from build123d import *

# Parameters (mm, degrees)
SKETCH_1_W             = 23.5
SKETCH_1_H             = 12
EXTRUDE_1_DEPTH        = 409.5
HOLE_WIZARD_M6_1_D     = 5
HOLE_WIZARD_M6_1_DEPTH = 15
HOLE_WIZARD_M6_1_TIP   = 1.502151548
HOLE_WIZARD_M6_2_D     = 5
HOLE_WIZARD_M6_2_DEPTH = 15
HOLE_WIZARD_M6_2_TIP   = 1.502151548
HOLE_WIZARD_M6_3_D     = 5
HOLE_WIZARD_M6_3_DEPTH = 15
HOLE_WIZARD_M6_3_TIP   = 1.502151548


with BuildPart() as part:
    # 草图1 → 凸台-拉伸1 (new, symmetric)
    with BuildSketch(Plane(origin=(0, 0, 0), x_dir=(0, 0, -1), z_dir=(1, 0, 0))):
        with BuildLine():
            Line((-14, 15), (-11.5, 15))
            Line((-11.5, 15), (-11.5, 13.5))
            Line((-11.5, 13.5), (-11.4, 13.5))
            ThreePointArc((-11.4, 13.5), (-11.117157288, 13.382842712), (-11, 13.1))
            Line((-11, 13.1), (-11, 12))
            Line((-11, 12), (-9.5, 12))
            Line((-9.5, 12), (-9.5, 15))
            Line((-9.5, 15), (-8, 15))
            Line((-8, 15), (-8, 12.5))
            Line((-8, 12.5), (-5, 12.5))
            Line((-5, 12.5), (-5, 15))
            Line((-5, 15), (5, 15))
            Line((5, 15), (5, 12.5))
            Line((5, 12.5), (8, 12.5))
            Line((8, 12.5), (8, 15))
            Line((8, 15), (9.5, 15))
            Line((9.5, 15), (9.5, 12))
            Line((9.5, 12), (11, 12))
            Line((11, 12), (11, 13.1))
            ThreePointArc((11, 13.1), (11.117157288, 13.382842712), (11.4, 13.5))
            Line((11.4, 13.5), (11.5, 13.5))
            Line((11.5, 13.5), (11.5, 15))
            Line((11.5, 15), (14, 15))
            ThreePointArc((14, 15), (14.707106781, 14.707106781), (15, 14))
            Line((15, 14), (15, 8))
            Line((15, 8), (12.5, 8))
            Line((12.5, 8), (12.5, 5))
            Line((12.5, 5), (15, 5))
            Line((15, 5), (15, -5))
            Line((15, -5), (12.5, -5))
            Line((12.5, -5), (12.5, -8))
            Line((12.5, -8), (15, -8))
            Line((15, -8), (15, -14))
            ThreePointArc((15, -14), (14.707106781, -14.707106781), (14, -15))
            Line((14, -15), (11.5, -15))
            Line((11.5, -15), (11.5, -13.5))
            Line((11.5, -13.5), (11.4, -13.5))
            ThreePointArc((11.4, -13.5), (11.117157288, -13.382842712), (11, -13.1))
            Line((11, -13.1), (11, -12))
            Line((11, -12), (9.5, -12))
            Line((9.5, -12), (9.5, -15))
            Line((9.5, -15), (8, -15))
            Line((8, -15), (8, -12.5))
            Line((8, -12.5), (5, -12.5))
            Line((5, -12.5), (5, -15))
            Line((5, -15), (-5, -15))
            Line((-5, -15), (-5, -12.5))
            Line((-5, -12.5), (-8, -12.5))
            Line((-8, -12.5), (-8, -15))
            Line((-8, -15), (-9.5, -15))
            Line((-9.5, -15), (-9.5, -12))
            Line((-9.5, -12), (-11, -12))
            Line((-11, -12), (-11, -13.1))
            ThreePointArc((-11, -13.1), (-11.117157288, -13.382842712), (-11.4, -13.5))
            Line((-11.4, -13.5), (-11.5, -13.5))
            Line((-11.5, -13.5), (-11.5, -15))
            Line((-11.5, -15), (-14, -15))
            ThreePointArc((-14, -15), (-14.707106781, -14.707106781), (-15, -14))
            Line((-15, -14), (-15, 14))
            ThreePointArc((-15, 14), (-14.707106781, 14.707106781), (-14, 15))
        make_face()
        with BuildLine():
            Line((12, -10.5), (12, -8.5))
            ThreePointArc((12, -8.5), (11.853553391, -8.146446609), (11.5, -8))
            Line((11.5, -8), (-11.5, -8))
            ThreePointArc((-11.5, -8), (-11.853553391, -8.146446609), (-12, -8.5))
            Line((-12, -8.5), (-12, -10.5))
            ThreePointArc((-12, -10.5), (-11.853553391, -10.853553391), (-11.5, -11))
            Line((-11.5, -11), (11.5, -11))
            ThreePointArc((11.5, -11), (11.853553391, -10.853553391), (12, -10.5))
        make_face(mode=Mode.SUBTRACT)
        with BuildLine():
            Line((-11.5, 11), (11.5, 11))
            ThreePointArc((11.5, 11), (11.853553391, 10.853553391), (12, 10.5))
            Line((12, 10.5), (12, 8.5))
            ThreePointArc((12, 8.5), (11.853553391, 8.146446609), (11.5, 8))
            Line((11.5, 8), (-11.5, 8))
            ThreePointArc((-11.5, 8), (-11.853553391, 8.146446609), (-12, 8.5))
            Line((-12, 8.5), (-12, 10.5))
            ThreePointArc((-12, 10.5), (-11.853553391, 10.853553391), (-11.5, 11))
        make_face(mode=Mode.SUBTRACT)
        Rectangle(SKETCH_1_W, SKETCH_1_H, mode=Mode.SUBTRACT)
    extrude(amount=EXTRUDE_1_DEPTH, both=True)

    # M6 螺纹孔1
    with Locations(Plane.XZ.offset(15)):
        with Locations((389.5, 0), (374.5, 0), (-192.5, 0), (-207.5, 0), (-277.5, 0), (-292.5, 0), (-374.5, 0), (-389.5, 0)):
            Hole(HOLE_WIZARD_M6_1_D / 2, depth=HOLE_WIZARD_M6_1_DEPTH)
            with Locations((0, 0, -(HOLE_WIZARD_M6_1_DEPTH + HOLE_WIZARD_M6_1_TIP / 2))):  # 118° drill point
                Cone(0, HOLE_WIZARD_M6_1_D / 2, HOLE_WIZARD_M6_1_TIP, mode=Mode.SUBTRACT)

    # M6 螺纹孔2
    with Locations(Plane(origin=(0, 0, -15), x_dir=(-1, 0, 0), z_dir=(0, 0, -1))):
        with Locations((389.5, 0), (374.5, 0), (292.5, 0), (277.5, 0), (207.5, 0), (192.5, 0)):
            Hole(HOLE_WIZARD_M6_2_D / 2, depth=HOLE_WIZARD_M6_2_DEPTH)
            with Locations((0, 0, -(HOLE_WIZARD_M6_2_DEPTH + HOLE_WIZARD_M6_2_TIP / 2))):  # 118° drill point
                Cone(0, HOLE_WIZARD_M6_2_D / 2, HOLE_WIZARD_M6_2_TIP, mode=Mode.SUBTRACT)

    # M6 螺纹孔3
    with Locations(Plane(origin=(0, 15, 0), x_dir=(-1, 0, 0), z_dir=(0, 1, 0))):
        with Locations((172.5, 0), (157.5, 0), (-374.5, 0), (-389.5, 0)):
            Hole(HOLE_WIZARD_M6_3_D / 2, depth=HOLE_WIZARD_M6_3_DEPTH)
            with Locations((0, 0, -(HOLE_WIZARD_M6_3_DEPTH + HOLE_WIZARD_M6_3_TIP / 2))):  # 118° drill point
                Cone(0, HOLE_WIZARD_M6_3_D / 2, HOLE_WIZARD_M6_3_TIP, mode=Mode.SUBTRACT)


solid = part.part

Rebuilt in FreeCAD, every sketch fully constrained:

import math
import FreeCAD as App
import Part
import Sketcher
Q = App.Units.Quantity


def add_polygon(sketch, points):
    """Adds a closed chain of lines whose ends are joined by coincident constraints."""
    first, n = sketch.GeometryCount, len(points)
    for a, b in zip(points, points[1:] + points[:1]):
        sketch.addGeometry(Part.LineSegment(App.Vector(*a, 0), App.Vector(*b, 0)), False)
    for i in range(n):
        sketch.addConstraint(Sketcher.Constraint("Coincident", first + i, 2, first + (i + 1) % n, 1))

doc = App.newDocument("Part")
params = doc.addObject("Spreadsheet::Sheet", "Params")
for row, (alias, value) in enumerate([
    ("sketch1_radius", "1 mm"),
    ("sketch1_radius2", "0.4 mm"),
    ("sketch1_radius3", "0.5 mm"),
    ("sketch1_width", "28 mm"),
    ("sketch1_width2", "3 mm"),
    ("pad1_length", "819 mm"),
    ("sketch2_diameter", "5 mm"),
    ("hole_diameter", "5 mm"),
    ("hole_depth", "15 mm"),
    ("sketch3_diameter", "5 mm"),
    ("hole2_diameter", "5 mm"),
    ("hole2_depth", "15 mm"),
    ("sketch4_diameter", "5 mm"),
    ("hole3_diameter", "5 mm"),
    ("hole3_depth", "15 mm"),
], start=1):
    params.set(f"A{row}", alias)
    params.set(f"B{row}", "=" + value)
    params.setAlias(f"B{row}", alias)

body = doc.addObject("PartDesign::Body", "Body")

sketch1 = body.newObject("Sketcher::SketchObject", "Sketch")
sketch1.AttachmentSupport = (doc.getObject("YZ_Plane"), [""])
sketch1.MapMode = "FlatFace"
sketch1.addGeometry(Part.LineSegment(App.Vector(15, 11.5, 0), App.Vector(15, 14, 0)), False)
sketch1.addGeometry(Part.ArcOfCircle(Part.Circle(App.Vector(14, 14, 0), App.Vector(0, 0, 1), 1), math.radians(0), math.radians(90)), False)
sketch1.addGeometry(Part.LineSegment(App.Vector(14, 15, 0), App.Vector(-14, 15, 0)), False)
sketch1.addGeometry(Part.ArcOfCircle(Part.Circle(App.Vector(-14, 14, 0), App.Vector(0, 0, 1), 1), math.radians(90), math.radians(180)), False)
sketch1.addGeometry(Part.LineSegment(App.Vector(-15, 14, 0), App.Vector(-15, 11.5, 0)), False)
sketch1.addGeometry(Part.LineSegment(App.Vector(-15, 11.5, 0), App.Vector(-13.5, 11.5, 0)), False)
sketch1.addGeometry(Part.LineSegment(App.Vector(-13.5, 11.5, 0), App.Vector(-13.5, 11.4, 0)), False)
sketch1.addGeometry(Part.ArcOfCircle(Part.Circle(App.Vector(-13.1, 11.4, 0), App.Vector(0, 0, 1), 0.4), math.radians(-180), math.radians(-90)), False)
sketch1.addGeometry(Part.LineSegment(App.Vector(-13.1, 11, 0), App.Vector(-12, 11, 0)), False)
sketch1.addGeometry(Part.LineSegment(App.Vector(-12, 11, 0), App.Vector(-12, 9.5, 0)), False)
sketch1.addGeometry(Part.LineSegment(App.Vector(-12, 9.5, 0), App.Vector(-15, 9.5, 0)), False)
sketch1.addGeometry(Part.LineSegment(App.Vector(-15, 9.5, 0), App.Vector(-15, 8, 0)), False)
sketch1.addGeometry(Part.LineSegment(App.Vector(-15, 8, 0), App.Vector(-12.5, 8, 0)), False)
sketch1.addGeometry(Part.LineSegment(App.Vector(-12.5, 8, 0), App.Vector(-12.5, 5, 0)), False)
sketch1.addGeometry(Part.LineSegment(App.Vector(-12.5, 5, 0), App.Vector(-15, 5, 0)), False)
sketch1.addGeometry(Part.LineSegment(App.Vector(-15, 5, 0), App.Vector(-15, -5, 0)), False)
sketch1.addGeometry(Part.LineSegment(App.Vector(-15, -5, 0), App.Vector(-12.5, -5, 0)), False)
sketch1.addGeometry(Part.LineSegment(App.Vector(-12.5, -5, 0), App.Vector(-12.5, -8, 0)), False)
sketch1.addGeometry(Part.LineSegment(App.Vector(-12.5, -8, 0), App.Vector(-15, -8, 0)), False)
sketch1.addGeometry(Part.LineSegment(App.Vector(-15, -8, 0), App.Vector(-15, -9.5, 0)), False)
sketch1.addGeometry(Part.LineSegment(App.Vector(-15, -9.5, 0), App.Vector(-12, -9.5, 0)), False)
sketch1.addGeometry(Part.LineSegment(App.Vector(-12, -9.5, 0), App.Vector(-12, -11, 0)), False)
sketch1.addGeometry(Part.LineSegment(App.Vector(-12, -11, 0), App.Vector(-13.1, -11, 0)), False)
sketch1.addGeometry(Part.ArcOfCircle(Part.Circle(App.Vector(-13.1, -11.4, 0), App.Vector(0, 0, 1), 0.4), math.radians(90), math.radians(180)), False)
sketch1.addGeometry(Part.LineSegment(App.Vector(-13.5, -11.4, 0), App.Vector(-13.5, -11.5, 0)), False)
sketch1.addGeometry(Part.LineSegment(App.Vector(-13.5, -11.5, 0), App.Vector(-15, -11.5, 0)), False)
sketch1.addGeometry(Part.LineSegment(App.Vector(-15, -11.5, 0), App.Vector(-15, -14, 0)), False)
sketch1.addGeometry(Part.ArcOfCircle(Part.Circle(App.Vector(-14, -14, 0), App.Vector(0, 0, 1), 1), math.radians(-180), math.radians(-90)), False)
sketch1.addGeometry(Part.LineSegment(App.Vector(-14, -15, 0), App.Vector(-8, -15, 0)), False)
sketch1.addGeometry(Part.LineSegment(App.Vector(-8, -15, 0), App.Vector(-8, -12.5, 0)), False)
sketch1.addGeometry(Part.LineSegment(App.Vector(-8, -12.5, 0), App.Vector(-5, -12.5, 0)), False)
sketch1.addGeometry(Part.LineSegment(App.Vector(-5, -12.5, 0), App.Vector(-5, -15, 0)), False)
sketch1.addGeometry(Part.LineSegment(App.Vector(-5, -15, 0), App.Vector(5, -15, 0)), False)
sketch1.addGeometry(Part.LineSegment(App.Vector(5, -15, 0), App.Vector(5, -12.5, 0)), False)
sketch1.addGeometry(Part.LineSegment(App.Vector(5, -12.5, 0), App.Vector(8, -12.5, 0)), False)
sketch1.addGeometry(Part.LineSegment(App.Vector(8, -12.5, 0), App.Vector(8, -15, 0)), False)
sketch1.addGeometry(Part.LineSegment(App.Vector(8, -15, 0), App.Vector(14, -15, 0)), False)
sketch1.addGeometry(Part.ArcOfCircle(Part.Circle(App.Vector(14, -14, 0), App.Vector(0, 0, 1), 1), math.radians(-90), math.radians(0)), False)
sketch1.addGeometry(Part.LineSegment(App.Vector(15, -14, 0), App.Vector(15, -11.5, 0)), False)
sketch1.addGeometry(Part.LineSegment(App.Vector(15, -11.5, 0), App.Vector(13.5, -11.5, 0)), False)
sketch1.addGeometry(Part.LineSegment(App.Vector(13.5, -11.5, 0), App.Vector(13.5, -11.4, 0)), False)
sketch1.addGeometry(Part.ArcOfCircle(Part.Circle(App.Vector(13.1, -11.4, 0), App.Vector(0, 0, 1), 0.4), math.radians(0), math.radians(90)), False)
sketch1.addGeometry(Part.LineSegment(App.Vector(13.1, -11, 0), App.Vector(12, -11, 0)), False)
sketch1.addGeometry(Part.LineSegment(App.Vector(12, -11, 0), App.Vector(12, -9.5, 0)), False)
sketch1.addGeometry(Part.LineSegment(App.Vector(12, -9.5, 0), App.Vector(15, -9.5, 0)), False)
sketch1.addGeometry(Part.LineSegment(App.Vector(15, -9.5, 0), App.Vector(15, -8, 0)), False)
sketch1.addGeometry(Part.LineSegment(App.Vector(15, -8, 0), App.Vector(12.5, -8, 0)), False)
sketch1.addGeometry(Part.LineSegment(App.Vector(12.5, -8, 0), App.Vector(12.5, -5, 0)), False)
sketch1.addGeometry(Part.LineSegment(App.Vector(12.5, -5, 0), App.Vector(15, -5, 0)), False)
sketch1.addGeometry(Part.LineSegment(App.Vector(15, -5, 0), App.Vector(15, 5, 0)), False)
sketch1.addGeometry(Part.LineSegment(App.Vector(15, 5, 0), App.Vector(12.5, 5, 0)), False)
sketch1.addGeometry(Part.LineSegment(App.Vector(12.5, 5, 0), App.Vector(12.5, 8, 0)), False)
sketch1.addGeometry(Part.LineSegment(App.Vector(12.5, 8, 0), App.Vector(15, 8, 0)), False)
sketch1.addGeometry(Part.LineSegment(App.Vector(15, 8, 0), App.Vector(15, 9.5, 0)), False)
sketch1.addGeometry(Part.LineSegment(App.Vector(15, 9.5, 0), App.Vector(12, 9.5, 0)), False)
sketch1.addGeometry(Part.LineSegment(App.Vector(12, 9.5, 0), App.Vector(12, 11, 0)), False)
sketch1.addGeometry(Part.LineSegment(App.Vector(12, 11, 0), App.Vector(13.1, 11, 0)), False)
sketch1.addGeometry(Part.ArcOfCircle(Part.Circle(App.Vector(13.1, 11.4, 0), App.Vector(0, 0, 1), 0.4), math.radians(-90), math.radians(0)), False)
sketch1.addGeometry(Part.LineSegment(App.Vector(13.5, 11.4, 0), App.Vector(13.5, 11.5, 0)), False)
sketch1.addGeometry(Part.LineSegment(App.Vector(13.5, 11.5, 0), App.Vector(15, 11.5, 0)), False)
sketch1.addGeometry(Part.ArcOfCircle(Part.Circle(App.Vector(-10.5, -11.5, 0), App.Vector(0, 0, 1), 0.5), math.radians(180), math.radians(270)), False)
sketch1.addGeometry(Part.LineSegment(App.Vector(-11, -11.5, 0), App.Vector(-11, 11.5, 0)), False)
sketch1.addGeometry(Part.ArcOfCircle(Part.Circle(App.Vector(-10.5, 11.5, 0), App.Vector(0, 0, 1), 0.5), math.radians(90), math.radians(180)), False)
sketch1.addGeometry(Part.LineSegment(App.Vector(-10.5, 12, 0), App.Vector(-8.5, 12, 0)), False)
sketch1.addGeometry(Part.ArcOfCircle(Part.Circle(App.Vector(-8.5, 11.5, 0), App.Vector(0, 0, 1), 0.5), math.radians(0), math.radians(90)), False)
sketch1.addGeometry(Part.LineSegment(App.Vector(-8, 11.5, 0), App.Vector(-8, -11.5, 0)), False)
sketch1.addGeometry(Part.ArcOfCircle(Part.Circle(App.Vector(-8.5, -11.5, 0), App.Vector(0, 0, 1), 0.5), math.radians(-90), math.radians(0)), False)
sketch1.addGeometry(Part.LineSegment(App.Vector(-8.5, -12, 0), App.Vector(-10.5, -12, 0)), False)
add_polygon(sketch1, [(-6, 11.75), (6, 11.75), (6, -11.75), (-6, -11.75)])
sketch1.addGeometry(Part.LineSegment(App.Vector(11, 11.5, 0), App.Vector(11, -11.5, 0)), False)
sketch1.addGeometry(Part.ArcOfCircle(Part.Circle(App.Vector(10.5, -11.5, 0), App.Vector(0, 0, 1), 0.5), math.radians(-90), math.radians(0)), False)
sketch1.addGeometry(Part.LineSegment(App.Vector(10.5, -12, 0), App.Vector(8.5, -12, 0)), False)
sketch1.addGeometry(Part.ArcOfCircle(Part.Circle(App.Vector(8.5, -11.5, 0), App.Vector(0, 0, 1), 0.5), math.radians(180), math.radians(270)), False)
sketch1.addGeometry(Part.LineSegment(App.Vector(8, -11.5, 0), App.Vector(8, 11.5, 0)), False)
sketch1.addGeometry(Part.ArcOfCircle(Part.Circle(App.Vector(8.5, 11.5, 0), App.Vector(0, 0, 1), 0.5), math.radians(90), math.radians(180)), False)
sketch1.addGeometry(Part.LineSegment(App.Vector(8.5, 12, 0), App.Vector(10.5, 12, 0)), False)
sketch1.addGeometry(Part.ArcOfCircle(Part.Circle(App.Vector(10.5, 11.5, 0), App.Vector(0, 0, 1), 0.5), math.radians(0), math.radians(90)), False)
sketch1.addConstraint([
    Sketcher.Constraint("Tangent", 0, 2, 1, 1),
    Sketcher.Constraint("Tangent", 1, 2, 2, 1),
    Sketcher.Constraint("Tangent", 2, 2, 3, 1),
    Sketcher.Constraint("Tangent", 3, 2, 4, 1),
    Sketcher.Constraint("Coincident", 4, 2, 5, 1),
    Sketcher.Constraint("Coincident", 5, 2, 6, 1),
    Sketcher.Constraint("Tangent", 6, 2, 7, 1),
    Sketcher.Constraint("Tangent", 7, 2, 8, 1),
    Sketcher.Constraint("Coincident", 8, 2, 9, 1),
    Sketcher.Constraint("Coincident", 9, 2, 10, 1),
    Sketcher.Constraint("Coincident", 10, 2, 11, 1),
    Sketcher.Constraint("Coincident", 11, 2, 12, 1),
    Sketcher.Constraint("Coincident", 12, 2, 13, 1),
    Sketcher.Constraint("Coincident", 13, 2, 14, 1),
    Sketcher.Constraint("Coincident", 14, 2, 15, 1),
    Sketcher.Constraint("Coincident", 15, 2, 16, 1),
    Sketcher.Constraint("Coincident", 16, 2, 17, 1),
    Sketcher.Constraint("Coincident", 17, 2, 18, 1),
    Sketcher.Constraint("Coincident", 18, 2, 19, 1),
    Sketcher.Constraint("Coincident", 19, 2, 20, 1),
    Sketcher.Constraint("Coincident", 20, 2, 21, 1),
    Sketcher.Constraint("Coincident", 21, 2, 22, 1),
    Sketcher.Constraint("Tangent", 22, 2, 23, 1),
    Sketcher.Constraint("Tangent", 23, 2, 24, 1),
    Sketcher.Constraint("Coincident", 24, 2, 25, 1),
    Sketcher.Constraint("Coincident", 25, 2, 26, 1),
    Sketcher.Constraint("Tangent", 26, 2, 27, 1),
    Sketcher.Constraint("Tangent", 27, 2, 28, 1),
    Sketcher.Constraint("Coincident", 28, 2, 29, 1),
    Sketcher.Constraint("Coincident", 29, 2, 30, 1),
    Sketcher.Constraint("Coincident", 30, 2, 31, 1),
    Sketcher.Constraint("Coincident", 31, 2, 32, 1),
    Sketcher.Constraint("Coincident", 32, 2, 33, 1),
    Sketcher.Constraint("Coincident", 33, 2, 34, 1),
    Sketcher.Constraint("Coincident", 34, 2, 35, 1),
    Sketcher.Constraint("Coincident", 35, 2, 36, 1),
    Sketcher.Constraint("Tangent", 36, 2, 37, 1),
    Sketcher.Constraint("Tangent", 37, 2, 38, 1),
    Sketcher.Constraint("Coincident", 38, 2, 39, 1),
    Sketcher.Constraint("Coincident", 39, 2, 40, 1),
    Sketcher.Constraint("Tangent", 40, 2, 41, 1),
    Sketcher.Constraint("Tangent", 41, 2, 42, 1),
    Sketcher.Constraint("Coincident", 42, 2, 43, 1),
    Sketcher.Constraint("Coincident", 43, 2, 44, 1),
    Sketcher.Constraint("Coincident", 44, 2, 45, 1),
    Sketcher.Constraint("Coincident", 45, 2, 46, 1),
    Sketcher.Constraint("Coincident", 46, 2, 47, 1),
    Sketcher.Constraint("Coincident", 47, 2, 48, 1),
    Sketcher.Constraint("Coincident", 48, 2, 49, 1),
    Sketcher.Constraint("Coincident", 49, 2, 50, 1),
    Sketcher.Constraint("Coincident", 50, 2, 51, 1),
    Sketcher.Constraint("Coincident", 51, 2, 52, 1),
    Sketcher.Constraint("Coincident", 52, 2, 53, 1),
    Sketcher.Constraint("Coincident", 53, 2, 54, 1),
    Sketcher.Constraint("Coincident", 54, 2, 55, 1),
    Sketcher.Constraint("Coincident", 55, 2, 56, 1),
    Sketcher.Constraint("Tangent", 56, 2, 57, 1),
    Sketcher.Constraint("Tangent", 57, 2, 58, 1),
    Sketcher.Constraint("Coincident", 58, 2, 59, 1),
    Sketcher.Constraint("Coincident", 59, 2, 0, 1),
    Sketcher.Constraint("Tangent", 60, 1, 61, 1),
    Sketcher.Constraint("Tangent", 61, 2, 62, 2),
    Sketcher.Constraint("Tangent", 62, 1, 63, 1),
    Sketcher.Constraint("Tangent", 63, 2, 64, 2),
    Sketcher.Constraint("Tangent", 64, 1, 65, 1),
    Sketcher.Constraint("Tangent", 65, 2, 66, 2),
    Sketcher.Constraint("Tangent", 66, 1, 67, 1),
    Sketcher.Constraint("Tangent", 67, 2, 60, 2),
    Sketcher.Constraint("Tangent", 72, 2, 73, 2),
    Sketcher.Constraint("Tangent", 73, 1, 74, 1),
    Sketcher.Constraint("Tangent", 74, 2, 75, 2),
    Sketcher.Constraint("Tangent", 75, 1, 76, 1),
    Sketcher.Constraint("Tangent", 76, 2, 77, 2),
    Sketcher.Constraint("Tangent", 77, 1, 78, 1),
    Sketcher.Constraint("Tangent", 78, 2, 79, 2),
    Sketcher.Constraint("Tangent", 79, 1, 72, 1),
    Sketcher.Constraint("Vertical", 0),
    Sketcher.Constraint("Horizontal", 2),
    Sketcher.Constraint("Vertical", 4),
    Sketcher.Constraint("Horizontal", 5),
    Sketcher.Constraint("Vertical", 6),
    Sketcher.Constraint("Horizontal", 8),
    Sketcher.Constraint("Vertical", 9),
    Sketcher.Constraint("Horizontal", 10),
    Sketcher.Constraint("Vertical", 11),
    Sketcher.Constraint("Horizontal", 12),
    Sketcher.Constraint("Vertical", 13),
    Sketcher.Constraint("Horizontal", 14),
    Sketcher.Constraint("Vertical", 15),
    Sketcher.Constraint("Horizontal", 16),
    Sketcher.Constraint("Vertical", 17),
    Sketcher.Constraint("Horizontal", 18),
    Sketcher.Constraint("Vertical", 19),
    Sketcher.Constraint("Horizontal", 20),
    Sketcher.Constraint("Vertical", 21),
    Sketcher.Constraint("Horizontal", 22),
    Sketcher.Constraint("Vertical", 24),
    Sketcher.Constraint("Horizontal", 25),
    Sketcher.Constraint("Vertical", 26),
    Sketcher.Constraint("Horizontal", 28),
    Sketcher.Constraint("Vertical", 29),
    Sketcher.Constraint("Horizontal", 30),
    Sketcher.Constraint("Vertical", 31),
    Sketcher.Constraint("Horizontal", 32),
    Sketcher.Constraint("Vertical", 33),
    Sketcher.Constraint("Horizontal", 34),
    Sketcher.Constraint("Vertical", 35),
    Sketcher.Constraint("Horizontal", 36),
    Sketcher.Constraint("Vertical", 38),
    Sketcher.Constraint("Horizontal", 39),
    Sketcher.Constraint("Vertical", 40),
    Sketcher.Constraint("Horizontal", 42),
    Sketcher.Constraint("Vertical", 43),
    Sketcher.Constraint("Horizontal", 44),
    Sketcher.Constraint("Vertical", 45),
    Sketcher.Constraint("Horizontal", 46),
    Sketcher.Constraint("Vertical", 47),
    Sketcher.Constraint("Horizontal", 48),
    Sketcher.Constraint("Vertical", 49),
    Sketcher.Constraint("Horizontal", 50),
    Sketcher.Constraint("Vertical", 51),
    Sketcher.Constraint("Horizontal", 52),
    Sketcher.Constraint("Vertical", 53),
    Sketcher.Constraint("Horizontal", 54),
    Sketcher.Constraint("Vertical", 55),
    Sketcher.Constraint("Horizontal", 56),
    Sketcher.Constraint("Vertical", 58),
    Sketcher.Constraint("Horizontal", 59),
    Sketcher.Constraint("Vertical", 61),
    Sketcher.Constraint("Horizontal", 63),
    Sketcher.Constraint("Vertical", 65),
    Sketcher.Constraint("Horizontal", 67),
    Sketcher.Constraint("Horizontal", 68),
    Sketcher.Constraint("Vertical", 69),
    Sketcher.Constraint("Horizontal", 70),
    Sketcher.Constraint("Vertical", 71),
    Sketcher.Constraint("Vertical", 72),
    Sketcher.Constraint("Horizontal", 74),
    Sketcher.Constraint("Vertical", 76),
    Sketcher.Constraint("Horizontal", 78),
    Sketcher.Constraint("Equal", 1, 3),
    Sketcher.Constraint("Equal", 7, 23),
    Sketcher.Constraint("Equal", 3, 27),
    Sketcher.Constraint("Equal", 27, 37),
    Sketcher.Constraint("Equal", 23, 41),
    Sketcher.Constraint("Equal", 41, 57),
    Sketcher.Constraint("Equal", 60, 62),
    Sketcher.Constraint("Equal", 62, 64),
    Sketcher.Constraint("Equal", 64, 66),
    Sketcher.Constraint("Equal", 66, 73),
    Sketcher.Constraint("Equal", 73, 75),
    Sketcher.Constraint("Equal", 75, 77),
    Sketcher.Constraint("Equal", 77, 79),
    Sketcher.Constraint("Symmetric", 1, 3, 27, 3, -1, 1),
    Sketcher.Constraint("Symmetric", 3, 3, 37, 3, -1, 1),
    Sketcher.Constraint("Symmetric", 7, 3, 41, 3, -1, 1),
    Sketcher.Constraint("Symmetric", 23, 3, 57, 3, -1, 1),
    Sketcher.Constraint("Symmetric", 62, 3, 73, 3, -1, 1),
    Sketcher.Constraint("Symmetric", 66, 3, 77, 3, -1, 1),
    Sketcher.Constraint("Symmetric", 9, 2, 43, 2, -1, 1),
    Sketcher.Constraint("Symmetric", 11, 2, 45, 2, -1, 1),
    Sketcher.Constraint("Symmetric", 13, 2, 47, 2, -1, 1),
    Sketcher.Constraint("Symmetric", 15, 2, 49, 2, -1, 1),
    Sketcher.Constraint("Symmetric", 17, 2, 51, 2, -1, 1),
    Sketcher.Constraint("Symmetric", 19, 2, 53, 2, -1, 1),
    Sketcher.Constraint("Symmetric", 68, 2, 70, 2, -1, 1),
    Sketcher.Constraint("Symmetric", 23, 3, 41, 3, -2),
    Sketcher.Constraint("Symmetric", 30, 2, 33, 2, -2),
    Sketcher.Constraint("Symmetric", 25, 2, 38, 2, -2),
    Sketcher.Constraint("Symmetric", 20, 2, 43, 2, -2),
    Sketcher.Constraint("Symmetric", 18, 2, 45, 2, -2),
    Sketcher.Constraint("Symmetric", 16, 2, 47, 2, -2),
    Sketcher.Constraint("Horizontal", 66, 3, 73, 3),
    Sketcher.Constraint("Horizontal", 79, 3, 4, 2),
    Sketcher.Constraint("Horizontal", 75, 3, 24, 2),
    Sketcher.Constraint("Horizontal", 28, 2, 31, 2),
    Sketcher.Constraint("Horizontal", 5, 2, 58, 2),
    Sketcher.Constraint("Vertical", 4, 2, 10, 2),
    Sketcher.Constraint("Vertical", 11, 2, 14, 2),
    Sketcher.Constraint("Vertical", 43, 2, 54, 2),
    Sketcher.Constraint("Vertical", 29, 2, 64, 1),
    Sketcher.Constraint("Vertical", 35, 2, 75, 1),
    Sketcher.Constraint("Equal", 20, 30),
    Sketcher.Constraint("Equal", 52, 0),
    Sketcher.Constraint("Equal", 59, 9),
    Sketcher.Constraint("Equal", 9, 11),
    Sketcher.Constraint("Equal", 54, 13),
    Sketcher.Constraint("Equal", 32, 15),
    Sketcher.Constraint("Equal", 26, 29),
    Sketcher.Constraint("Radius", 1, Q("1 mm")),
    Sketcher.Constraint("Radius", 7, Q("0.4 mm")),
    Sketcher.Constraint("Radius", 60, Q("0.5 mm")),
    Sketcher.Constraint("DistanceX", 2, 2, 2, 1, Q("28 mm")),
    Sketcher.Constraint("DistanceX", 10, 2, 10, 1, Q("3 mm")),
    Sketcher.Constraint("DistanceX", 28, 1, 28, 2, Q("6 mm")),
    Sketcher.Constraint("DistanceX", 63, 1, 63, 2, Q("2 mm")),
    Sketcher.Constraint("DistanceX", 68, 1, 68, 2, Q("12 mm")),
    Sketcher.Constraint("DistanceY", 61, 1, 61, 2, Q("23 mm")),
    Sketcher.Constraint("DistanceX", 5, 1, 5, 2, Q("1.5 mm")),
    Sketcher.Constraint("DistanceX", 12, 1, 12, 2, Q("2.5 mm")),
    Sketcher.Constraint("DistanceY", 69, 2, 69, 1, Q("23.5 mm")),
])
sketch1.setExpression("Constraints[193]", "Params.sketch1_radius")
sketch1.setExpression("Constraints[194]", "Params.sketch1_radius2")
sketch1.setExpression("Constraints[195]", "Params.sketch1_radius3")
sketch1.setExpression("Constraints[196]", "Params.sketch1_width")
sketch1.setExpression("Constraints[197]", "Params.sketch1_width2")
pad1 = body.newObject("PartDesign::Pad", "Pad")
pad1.Profile = sketch1
pad1.setExpression("Length", "Params.pad1_length")
pad1.Midplane = True

sketch2 = body.newObject("Sketcher::SketchObject", "Sketch001")
sketch2.AttachmentSupport = (doc.getObject("XZ_Plane"), [""])
sketch2.MapMode = "FlatFace"
sketch2.AttachmentOffset = App.Placement(App.Vector(0, 0, 15), App.Rotation())
sketch2.addGeometry([
    Part.Circle(App.Vector(389.5, 0, 0), App.Vector(0, 0, 1), 2.5),
    Part.Circle(App.Vector(374.5, 0, 0), App.Vector(0, 0, 1), 2.5),
    Part.Circle(App.Vector(-192.5, 0, 0), App.Vector(0, 0, 1), 2.5),
    Part.Circle(App.Vector(-207.5, 0, 0), App.Vector(0, 0, 1), 2.5),
    Part.Circle(App.Vector(-277.5, 0, 0), App.Vector(0, 0, 1), 2.5),
    Part.Circle(App.Vector(-292.5, 0, 0), App.Vector(0, 0, 1), 2.5),
    Part.Circle(App.Vector(-374.5, 0, 0), App.Vector(0, 0, 1), 2.5),
    Part.Circle(App.Vector(-389.5, 0, 0), App.Vector(0, 0, 1), 2.5),
], False)
sketch2.addConstraint([
    Sketcher.Constraint("Equal", 0, 1),
    Sketcher.Constraint("Equal", 1, 2),
    Sketcher.Constraint("Equal", 2, 3),
    Sketcher.Constraint("Equal", 3, 4),
    Sketcher.Constraint("Equal", 4, 5),
    Sketcher.Constraint("Equal", 5, 6),
    Sketcher.Constraint("Equal", 6, 7),
    Sketcher.Constraint("Symmetric", 1, 3, 6, 3, -1, 1),
    Sketcher.Constraint("Symmetric", 0, 3, 7, 3, -1, 1),
    Sketcher.Constraint("PointOnObject", 0, 3, -1),
    Sketcher.Constraint("PointOnObject", 1, 3, -1),
    Sketcher.Constraint("PointOnObject", 2, 3, -1),
    Sketcher.Constraint("PointOnObject", 3, 3, -1),
    Sketcher.Constraint("PointOnObject", 4, 3, -1),
    Sketcher.Constraint("PointOnObject", 5, 3, -1),
    Sketcher.Constraint("Diameter", 0, Q("5 mm")),
    Sketcher.Constraint("DistanceX", 1, 3, 0, 3, Q("15 mm")),
    Sketcher.Constraint("DistanceX", 2, 3, 1, 3, Q("567 mm")),
    Sketcher.Constraint("DistanceX", 3, 3, 2, 3, Q("15 mm")),
    Sketcher.Constraint("DistanceX", 4, 3, 3, 3, Q("70 mm")),
    Sketcher.Constraint("DistanceX", 5, 3, 4, 3, Q("15 mm")),
    Sketcher.Constraint("DistanceX", 6, 3, 5, 3, Q("82 mm")),
])
sketch2.setExpression("Constraints[15]", "Params.sketch2_diameter")
doc.recompute()
hole = body.newObject("PartDesign::Hole", "Hole")
hole.Profile = sketch2
hole.ThreadType = "None"
hole.setExpression("Diameter", "Params.hole_diameter")
hole.DepthType = "Dimension"
hole.setExpression("Depth", "Params.hole_depth")
hole.DrillPoint = "Angled"
hole.DrillPointAngle = 118

sketch3 = body.newObject("Sketcher::SketchObject", "Sketch002")
sketch3.AttachmentSupport = (doc.getObject("XY_Plane"), [""])
sketch3.MapMode = "FlatFace"
sketch3.AttachmentOffset = App.Placement(App.Vector(0, 0, -15), App.Rotation())
sketch3.addGeometry([
    Part.Circle(App.Vector(-389.5, 0, 0), App.Vector(0, 0, 1), 2.5),
    Part.Circle(App.Vector(-374.5, 0, 0), App.Vector(0, 0, 1), 2.5),
    Part.Circle(App.Vector(-292.5, 0, 0), App.Vector(0, 0, 1), 2.5),
    Part.Circle(App.Vector(-277.5, 0, 0), App.Vector(0, 0, 1), 2.5),
    Part.Circle(App.Vector(-207.5, 0, 0), App.Vector(0, 0, 1), 2.5),
    Part.Circle(App.Vector(-192.5, 0, 0), App.Vector(0, 0, 1), 2.5),
], False)
sketch3.addConstraint([
    Sketcher.Constraint("Equal", 0, 1),
    Sketcher.Constraint("Equal", 1, 2),
    Sketcher.Constraint("Equal", 2, 3),
    Sketcher.Constraint("Equal", 3, 4),
    Sketcher.Constraint("Equal", 4, 5),
    Sketcher.Constraint("PointOnObject", 0, 3, -1),
    Sketcher.Constraint("PointOnObject", 1, 3, -1),
    Sketcher.Constraint("PointOnObject", 2, 3, -1),
    Sketcher.Constraint("PointOnObject", 3, 3, -1),
    Sketcher.Constraint("PointOnObject", 4, 3, -1),
    Sketcher.Constraint("PointOnObject", 5, 3, -1),
    Sketcher.Constraint("Diameter", 0, Q("5 mm")),
    Sketcher.Constraint("DistanceX", 0, 3, 1, 3, Q("15 mm")),
    Sketcher.Constraint("DistanceX", 1, 3, 2, 3, Q("82 mm")),
    Sketcher.Constraint("DistanceX", 2, 3, 3, 3, Q("15 mm")),
    Sketcher.Constraint("DistanceX", 3, 3, 4, 3, Q("70 mm")),
    Sketcher.Constraint("DistanceX", 4, 3, 5, 3, Q("15 mm")),
    Sketcher.Constraint("DistanceX", 0, 3, -1, 1, Q("389.5 mm")),
])
sketch3.setExpression("Constraints[11]", "Params.sketch3_diameter")
doc.recompute()
hole2 = body.newObject("PartDesign::Hole", "Hole001")
hole2.Profile = sketch3
hole2.ThreadType = "None"
hole2.setExpression("Diameter", "Params.hole2_diameter")
hole2.DepthType = "Dimension"
hole2.setExpression("Depth", "Params.hole2_depth")
hole2.DrillPoint = "Angled"
hole2.DrillPointAngle = 118
hole2.Reversed = True

sketch4 = body.newObject("Sketcher::SketchObject", "Sketch003")
sketch4.AttachmentSupport = (doc.getObject("XZ_Plane"), [""])
sketch4.MapMode = "FlatFace"
sketch4.AttachmentOffset = App.Placement(App.Vector(0, 0, -15), App.Rotation())
sketch4.addGeometry([
    Part.Circle(App.Vector(-172.5, 0, 0), App.Vector(0, 0, 1), 2.5),
    Part.Circle(App.Vector(-157.5, 0, 0), App.Vector(0, 0, 1), 2.5),
    Part.Circle(App.Vector(374.5, 0, 0), App.Vector(0, 0, 1), 2.5),
    Part.Circle(App.Vector(389.5, 0, 0), App.Vector(0, 0, 1), 2.5),
], False)
sketch4.addConstraint([
    Sketcher.Constraint("Equal", 0, 1),
    Sketcher.Constraint("Equal", 1, 2),
    Sketcher.Constraint("Equal", 2, 3),
    Sketcher.Constraint("PointOnObject", 0, 3, -1),
    Sketcher.Constraint("PointOnObject", 1, 3, -1),
    Sketcher.Constraint("PointOnObject", 2, 3, -1),
    Sketcher.Constraint("PointOnObject", 3, 3, -1),
    Sketcher.Constraint("Diameter", 0, Q("5 mm")),
    Sketcher.Constraint("DistanceX", 0, 3, 1, 3, Q("15 mm")),
    Sketcher.Constraint("DistanceX", 1, 3, 2, 3, Q("532 mm")),
    Sketcher.Constraint("DistanceX", 2, 3, 3, 3, Q("15 mm")),
    Sketcher.Constraint("DistanceX", 0, 3, -1, 1, Q("172.5 mm")),
])
sketch4.setExpression("Constraints[7]", "Params.sketch4_diameter")
doc.recompute()
hole3 = body.newObject("PartDesign::Hole", "Hole002")
hole3.Profile = sketch4
hole3.ThreadType = "None"
hole3.setExpression("Diameter", "Params.hole3_diameter")
hole3.DepthType = "Dimension"
hole3.setExpression("Depth", "Params.hole3_depth")
hole3.DrillPoint = "Angled"
hole3.DrillPointAngle = 118
hole3.Reversed = True

doc.recompute()
